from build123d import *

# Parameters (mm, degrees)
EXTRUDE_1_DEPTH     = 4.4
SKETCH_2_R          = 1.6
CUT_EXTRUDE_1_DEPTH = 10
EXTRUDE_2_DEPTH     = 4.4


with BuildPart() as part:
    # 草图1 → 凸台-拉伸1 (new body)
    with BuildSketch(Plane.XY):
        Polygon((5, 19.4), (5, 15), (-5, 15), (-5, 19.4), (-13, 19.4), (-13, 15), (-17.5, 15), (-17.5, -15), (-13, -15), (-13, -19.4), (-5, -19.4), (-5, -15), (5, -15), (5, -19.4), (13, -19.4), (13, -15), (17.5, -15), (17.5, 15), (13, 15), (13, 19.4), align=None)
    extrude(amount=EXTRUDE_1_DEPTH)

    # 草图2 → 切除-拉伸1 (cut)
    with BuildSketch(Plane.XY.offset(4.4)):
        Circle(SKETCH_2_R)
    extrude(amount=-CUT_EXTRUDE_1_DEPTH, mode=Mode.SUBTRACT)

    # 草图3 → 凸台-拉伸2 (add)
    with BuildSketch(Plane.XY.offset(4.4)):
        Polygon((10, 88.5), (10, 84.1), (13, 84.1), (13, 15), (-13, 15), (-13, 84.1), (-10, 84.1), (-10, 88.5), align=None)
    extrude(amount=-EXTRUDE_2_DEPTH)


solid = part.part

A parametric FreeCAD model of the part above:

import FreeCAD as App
import Part
import Sketcher
from FreeCAD import Vector

doc = App.newDocument("Part")
body = doc.addObject("PartDesign::Body", "Body")

sketch1 = body.newObject("Sketcher::SketchObject", "Sketch")
sketch1.AttachmentSupport = (doc.getObject("XY_Plane"), [""])
sketch1.MapMode = "FlatFace"
sketch1.addGeometry([
    Part.LineSegment(Vector(5, 19.4, 0), Vector(5, 15, 0)),
    Part.LineSegment(Vector(5, 15, 0), Vector(-5, 15, 0)),
    Part.LineSegment(Vector(-5, 15, 0), Vector(-5, 19.4, 0)),
    Part.LineSegment(Vector(-5, 19.4, 0), Vector(-13, 19.4, 0)),
    Part.LineSegment(Vector(-13, 19.4, 0), Vector(-13, 15, 0)),
    Part.LineSegment(Vector(-13, 15, 0), Vector(-17.5, 15, 0)),
    Part.LineSegment(Vector(-17.5, 15, 0), Vector(-17.5, -15, 0)),
    Part.LineSegment(Vector(-17.5, -15, 0), Vector(-13, -15, 0)),
    Part.LineSegment(Vector(-13, -15, 0), Vector(-13, -19.4, 0)),
    Part.LineSegment(Vector(-13, -19.4, 0), Vector(-5, -19.4, 0)),
    Part.LineSegment(Vector(-5, -19.4, 0), Vector(-5, -15, 0)),
    Part.LineSegment(Vector(-5, -15, 0), Vector(5, -15, 0)),
    Part.LineSegment(Vector(5, -15, 0), Vector(5, -19.4, 0)),
    Part.LineSegment(Vector(5, -19.4, 0), Vector(13, -19.4, 0)),
    Part.LineSegment(Vector(13, -19.4, 0), Vector(13, -15, 0)),
    Part.LineSegment(Vector(13, -15, 0), Vector(17.5, -15, 0)),
    Part.LineSegment(Vector(17.5, -15, 0), Vector(17.5, 15, 0)),
    Part.LineSegment(Vector(17.5, 15, 0), Vector(13, 15, 0)),
    Part.LineSegment(Vector(13, 15, 0), Vector(13, 19.4, 0)),
    Part.LineSegment(Vector(13, 19.4, 0), Vector(5, 19.4, 0)),
], False)
sketch1.addConstraint([
    Sketcher.Constraint("Coincident", 0, 2, 1, 1),
    Sketcher.Constraint("Coincident", 1, 2, 2, 1),
    Sketcher.Constraint("Coincident", 2, 2, 3, 1),
    Sketcher.Constraint("Coincident", 3, 2, 4, 1),
    Sketcher.Constraint("Coincident", 4, 2, 5, 1),
    Sketcher.Constraint("Coincident", 5, 2, 6, 1),
    Sketcher.Constraint("Coincident", 6, 2, 7, 1),
    Sketcher.Constraint("Coincident", 7, 2, 8, 1),
    Sketcher.Constraint("Coincident", 8, 2, 9, 1),
    Sketcher.Constraint("Coincident", 9, 2, 10, 1),
    Sketcher.Constraint("Coincident", 10, 2, 11, 1),
    Sketcher.Constraint("Coincident", 11, 2, 12, 1),
    Sketcher.Constraint("Coincident", 12, 2, 13, 1),
    Sketcher.Constraint("Coincident", 13, 2, 14, 1),
    Sketcher.Constraint("Coincident", 14, 2, 15, 1),
    Sketcher.Constraint("Coincident", 15, 2, 16, 1),
    Sketcher.Constraint("Coincident", 16, 2, 17, 1),
    Sketcher.Constraint("Coincident", 17, 2, 18, 1),
    Sketcher.Constraint("Coincident", 18, 2, 19, 1),
    Sketcher.Constraint("Coincident", 19, 2, 0, 1),
    Sketcher.Constraint("Vertical", 0),
    Sketcher.Constraint("Horizontal", 1),
    Sketcher.Constraint("Vertical", 2),
    Sketcher.Constraint("Horizontal", 3),
    Sketcher.Constraint("Vertical", 4),
    Sketcher.Constraint("Horizontal", 5),
    Sketcher.Constraint("Vertical", 6),
    Sketcher.Constraint("Horizontal", 7),
    Sketcher.Constraint("Vertical", 8),
    Sketcher.Constraint("Horizontal", 9),
    Sketcher.Constraint("Vertical", 10),
    Sketcher.Constraint("Horizontal", 11),
    Sketcher.Constraint("Vertical", 12),
    Sketcher.Constraint("Horizontal", 13),
    Sketcher.Constraint("Vertical", 14),
    Sketcher.Constraint("Horizontal", 15),
    Sketcher.Constraint("Vertical", 16),
    Sketcher.Constraint("Horizontal", 17),
    Sketcher.Constraint("Vertical", 18),
    Sketcher.Constraint("Horizontal", 19),
    Sketcher.Constraint("Symmetric", 0, 2, 10, 2, -1, 1),
    Sketcher.Constraint("Symmetric", 2, 2, 12, 2, -1, 1),
    Sketcher.Constraint("Symmetric", 4, 2, 14, 2, -1, 1),
    Sketcher.Constraint("Symmetric", 6, 2, 16, 2, -1, 1),
    Sketcher.Constraint("Symmetric", 8, 2, 18, 2, -1, 1),
    Sketcher.Constraint("Symmetric", 9, 2, 12, 2, -2),
    Sketcher.Constraint("Symmetric", 7, 2, 14, 2, -2),
    Sketcher.Constraint("Horizontal", 1, 2, 4, 2),
    Sketcher.Constraint("DistanceX", 1, 2, 1, 1, 10.0),
    Sketcher.Constraint("DistanceX", 3, 2, 3, 1, 8.0),
    Sketcher.Constraint("DistanceY", 6, 2, 6, 1, 30.0),
    Sketcher.Constraint("DistanceX", 5, 2, 5, 1, 4.5),
    Sketcher.Constraint("DistanceY", 0, 2, 0, 1, 4.4),
])
pad1 = body.newObject("PartDesign::Pad", "Pad")
pad1.Profile = sketch1
pad1.Length = 4.4

sketch2 = body.newObject("Sketcher::SketchObject", "Sketch001")
sketch2.AttachmentSupport = (doc.getObject("XY_Plane"), [""])
sketch2.MapMode = "FlatFace"
sketch2.AttachmentOffset = App.Placement(Vector(0, 0, 4.4), App.Rotation())
sketch2.addGeometry(Part.Circle(Vector(0, 0, 0), Vector(0, 0, 1), 1.6), False)
sketch2.addConstraint([
    Sketcher.Constraint("Coincident", 0, 3, -1, 1),
    Sketcher.Constraint("Diameter", 0, 3.2),
])
pocket1 = body.newObject("PartDesign::Pocket", "Pocket")
pocket1.Profile = sketch2
pocket1.Length = 10

sketch3 = body.newObject("Sketcher::SketchObject", "Sketch002")
sketch3.AttachmentSupport = (doc.getObject("XY_Plane"), [""])
sketch3.MapMode = "FlatFace"
sketch3.AttachmentOffset = App.Placement(Vector(0, 0, 4.4), App.Rotation())
sketch3.addGeometry([
    Part.LineSegment(Vector(10, 84.1, 0), Vector(10, 88.5, 0)),
    Part.LineSegment(Vector(10, 88.5, 0), Vector(-10, 88.5, 0)),
    Part.LineSegment(Vector(-10, 88.5, 0), Vector(-10, 84.1, 0)),
    Part.LineSegment(Vector(-10, 84.1, 0), Vector(-13, 84.1, 0)),
    Part.LineSegment(Vector(-13, 84.1, 0), Vector(-13, 15, 0)),
    Part.LineSegment(Vector(-13, 15, 0), Vector(13, 15, 0)),
    Part.LineSegment(Vector(13, 15, 0), Vector(13, 84.1, 0)),
    Part.LineSegment(Vector(13, 84.1, 0), Vector(10, 84.1, 0)),
], False)
sketch3.addConstraint([
    Sketcher.Constraint("Coincident", 0, 2, 1, 1),
    Sketcher.Constraint("Coincident", 1, 2, 2, 1),
    Sketcher.Constraint("Coincident", 2, 2, 3, 1),
    Sketcher.Constraint("Coincident", 3, 2, 4, 1),
    Sketcher.Constraint("Coincident", 4, 2, 5, 1),
    Sketcher.Constraint("Coincident", 5, 2, 6, 1),
    Sketcher.Constraint("Coincident", 6, 2, 7, 1),
    Sketcher.Constraint("Coincident", 7, 2, 0, 1),
    Sketcher.Constraint("Vertical", 0),
    Sketcher.Constraint("Horizontal", 1),
    Sketcher.Constraint("Vertical", 2),
    Sketcher.Constraint("Horizontal", 3),
    Sketcher.Constraint("Vertical", 4),
    Sketcher.Constraint("Horizontal", 5),
    Sketcher.Constraint("Vertical", 6),
    Sketcher.Constraint("Horizontal", 7),
    Sketcher.Constraint("Symmetric", 3, 2, 6, 2, -2),
    Sketcher.Constraint("Equal", 3, 7),
    Sketcher.Constraint("DistanceX", 1, 2, 1, 1, 20.0),
    Sketcher.Constraint("DistanceX", 3, 2, 3, 1, 3.0),
    Sketcher.Constraint("DistanceY", 0, 1, 0, 2, 4.4),
    Sketcher.Constraint("DistanceY", 4, 2, 4, 1, 69.1),
    Sketcher.Constraint("DistanceY", -1, 1, 4, 2, 15.0),
])
pad2 = body.newObject("PartDesign::Pad", "Pad001")
pad2.Profile = sketch3
pad2.Length = 4.4
pad2.Reversed = True

doc.recompute()
